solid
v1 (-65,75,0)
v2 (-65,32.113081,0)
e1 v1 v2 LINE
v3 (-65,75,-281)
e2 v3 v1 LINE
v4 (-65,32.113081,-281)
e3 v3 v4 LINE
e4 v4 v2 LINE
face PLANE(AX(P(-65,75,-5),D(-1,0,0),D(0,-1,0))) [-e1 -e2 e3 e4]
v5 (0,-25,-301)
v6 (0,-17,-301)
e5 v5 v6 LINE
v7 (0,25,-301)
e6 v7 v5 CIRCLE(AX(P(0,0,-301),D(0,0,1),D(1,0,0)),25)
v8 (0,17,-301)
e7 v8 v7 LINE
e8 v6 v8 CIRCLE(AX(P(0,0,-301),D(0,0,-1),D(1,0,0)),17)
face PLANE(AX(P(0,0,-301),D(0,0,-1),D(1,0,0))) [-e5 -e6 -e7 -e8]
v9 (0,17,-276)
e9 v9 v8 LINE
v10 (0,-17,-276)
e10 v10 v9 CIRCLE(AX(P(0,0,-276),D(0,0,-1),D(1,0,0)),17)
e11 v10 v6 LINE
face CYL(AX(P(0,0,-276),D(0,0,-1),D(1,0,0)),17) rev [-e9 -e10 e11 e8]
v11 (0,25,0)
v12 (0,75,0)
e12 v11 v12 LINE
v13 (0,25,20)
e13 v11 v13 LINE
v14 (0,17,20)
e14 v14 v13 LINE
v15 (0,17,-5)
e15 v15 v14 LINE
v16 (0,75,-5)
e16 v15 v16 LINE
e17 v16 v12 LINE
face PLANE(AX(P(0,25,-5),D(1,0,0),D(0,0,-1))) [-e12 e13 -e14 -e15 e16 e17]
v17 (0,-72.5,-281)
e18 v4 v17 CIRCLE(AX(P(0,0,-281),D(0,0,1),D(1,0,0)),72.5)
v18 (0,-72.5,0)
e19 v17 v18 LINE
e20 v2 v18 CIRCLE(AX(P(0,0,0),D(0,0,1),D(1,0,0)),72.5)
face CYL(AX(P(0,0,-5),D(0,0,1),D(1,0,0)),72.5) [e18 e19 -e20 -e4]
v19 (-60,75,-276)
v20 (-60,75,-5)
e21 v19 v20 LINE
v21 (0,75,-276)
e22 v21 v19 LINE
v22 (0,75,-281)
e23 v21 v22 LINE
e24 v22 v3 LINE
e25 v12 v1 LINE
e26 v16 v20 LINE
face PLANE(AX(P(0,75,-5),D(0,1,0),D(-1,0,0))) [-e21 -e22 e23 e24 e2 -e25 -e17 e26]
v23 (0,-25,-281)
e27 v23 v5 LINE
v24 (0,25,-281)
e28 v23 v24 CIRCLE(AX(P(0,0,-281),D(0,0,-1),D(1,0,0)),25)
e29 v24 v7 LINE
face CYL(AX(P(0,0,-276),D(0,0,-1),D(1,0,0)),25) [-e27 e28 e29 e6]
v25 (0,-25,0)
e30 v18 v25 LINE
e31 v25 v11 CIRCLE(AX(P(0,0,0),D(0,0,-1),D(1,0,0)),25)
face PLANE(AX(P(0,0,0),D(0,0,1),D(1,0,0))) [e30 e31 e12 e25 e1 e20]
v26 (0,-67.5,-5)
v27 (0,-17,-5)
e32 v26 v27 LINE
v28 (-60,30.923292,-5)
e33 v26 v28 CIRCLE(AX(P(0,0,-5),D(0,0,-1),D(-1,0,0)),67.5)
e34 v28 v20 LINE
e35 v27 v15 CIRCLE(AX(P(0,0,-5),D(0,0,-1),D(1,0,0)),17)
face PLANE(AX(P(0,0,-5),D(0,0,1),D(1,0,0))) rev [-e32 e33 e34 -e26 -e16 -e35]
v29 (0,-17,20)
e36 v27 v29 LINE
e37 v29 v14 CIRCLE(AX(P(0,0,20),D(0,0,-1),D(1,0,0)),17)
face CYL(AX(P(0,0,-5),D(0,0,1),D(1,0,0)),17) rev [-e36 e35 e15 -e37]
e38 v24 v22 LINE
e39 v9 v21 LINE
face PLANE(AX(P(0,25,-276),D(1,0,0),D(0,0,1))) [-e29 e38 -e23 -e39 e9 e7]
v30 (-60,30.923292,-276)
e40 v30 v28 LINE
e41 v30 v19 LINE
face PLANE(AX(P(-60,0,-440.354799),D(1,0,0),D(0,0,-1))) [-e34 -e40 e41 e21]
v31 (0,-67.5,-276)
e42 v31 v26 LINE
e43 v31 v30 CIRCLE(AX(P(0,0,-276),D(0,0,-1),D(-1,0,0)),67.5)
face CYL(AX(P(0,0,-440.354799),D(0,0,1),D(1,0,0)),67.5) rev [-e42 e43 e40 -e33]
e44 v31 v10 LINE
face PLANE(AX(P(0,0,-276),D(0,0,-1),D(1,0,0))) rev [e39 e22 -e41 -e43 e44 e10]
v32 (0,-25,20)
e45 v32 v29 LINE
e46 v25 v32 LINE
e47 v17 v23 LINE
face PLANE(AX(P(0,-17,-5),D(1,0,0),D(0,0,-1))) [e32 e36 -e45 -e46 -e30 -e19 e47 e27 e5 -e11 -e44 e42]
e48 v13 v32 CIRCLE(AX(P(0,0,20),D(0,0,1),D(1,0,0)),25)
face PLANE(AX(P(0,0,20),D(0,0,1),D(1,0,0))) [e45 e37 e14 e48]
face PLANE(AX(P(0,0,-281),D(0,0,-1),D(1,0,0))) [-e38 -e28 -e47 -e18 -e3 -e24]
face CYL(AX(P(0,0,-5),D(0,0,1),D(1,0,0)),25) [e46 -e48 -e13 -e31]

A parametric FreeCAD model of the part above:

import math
import FreeCAD as App
import Part
import Sketcher
Q = App.Units.Quantity

doc = App.newDocument("Part")
body = doc.addObject("PartDesign::Body", "Body")

sketch1 = body.newObject("Sketcher::SketchObject", "Sketch")
sketch1.AttachmentSupport = (doc.getObject("XY_Plane"), [""])
sketch1.MapMode = "FlatFace"
sketch1.addGeometry(Part.LineSegment(App.Vector(0, 17, 0), App.Vector(0, 25, 0)), False)
sketch1.addGeometry(Part.ArcOfCircle(Part.Circle(App.Vector(0, 0, 0), App.Vector(0, 0, 1), 25), math.radians(90), math.radians(270)), False)
sketch1.addGeometry(Part.LineSegment(App.Vector(0, -25, 0), App.Vector(0, -17, 0)), False)
sketch1.addGeometry(Part.ArcOfCircle(Part.Circle(App.Vector(0, 0, 0), App.Vector(0, 0, 1), 17), math.radians(90), math.radians(270)), False)
sketch1.addConstraint(Sketcher.Constraint("Coincident", 0, 2, 1, 1))
sketch1.addConstraint(Sketcher.Constraint("Coincident", 1, 2, 2, 1))
sketch1.addConstraint(Sketcher.Constraint("Coincident", 2, 2, 3, 2))
sketch1.addConstraint(Sketcher.Constraint("Coincident", 3, 1, 0, 1))
sketch1.addConstraint(Sketcher.Constraint("Vertical", 0))
sketch1.addConstraint(Sketcher.Constraint("Vertical", 2))
sketch1.addConstraint(Sketcher.Constraint("Coincident", 1, 3, -1, 1))
sketch1.addConstraint(Sketcher.Constraint("Coincident", 3, 3, -1, 1))
sketch1.addConstraint(Sketcher.Constraint("PointOnObject", 0, 2, -2))
sketch1.addConstraint(Sketcher.Constraint("PointOnObject", 1, 2, -2))
sketch1.addConstraint(Sketcher.Constraint("Radius", 1, Q("25 mm")))
sketch1.addConstraint(Sketcher.Constraint("Radius", 3, Q("17 mm")))
pad1 = body.newObject("PartDesign::Pad", "Pad")
pad1.Profile = sketch1
pad1.Type = "TwoLengths"
pad1.Length = 20
pad1.Length2 = 5

sketch2 = body.newObject("Sketcher::SketchObject", "Sketch001")
sketch2.AttachmentSupport = (doc.getObject("XY_Plane"), [""])
sketch2.MapMode = "FlatFace"
sketch2.AttachmentOffset = App.Placement(App.Vector(0, 0, -5), App.Rotation())
sketch2.addGeometry(Part.LineSegment(App.Vector(0, 25, 0), App.Vector(0, 75, 0)), False)
sketch2.addGeometry(Part.LineSegment(App.Vector(0, 75, 0), App.Vector(-65, 75, 0)), False)
sketch2.addGeometry(Part.LineSegment(App.Vector(-65, 75, 0), App.Vector(-65, 32, 0)), False)
sketch2.addGeometry(Part.ArcOfCircle(Part.Circle(App.Vector(0, 0, 0), App.Vector(0, 0, 1), 72), math.radians(154), math.radians(270)), False)
sketch2.addGeometry(Part.LineSegment(App.Vector(0, -72, 0), App.Vector(0, -25, 0)), False)
sketch2.addGeometry(Part.ArcOfCircle(Part.Circle(App.Vector(0, 0, 0), App.Vector(0, 0, 1), 25), math.radians(90), math.radians(270)), False)
sketch2.addConstraint(Sketcher.Constraint("Coincident", 0, 2, 1, 1))
sketch2.addConstraint(Sketcher.Constraint("Coincident", 1, 2, 2, 1))
sketch2.addConstraint(Sketcher.Constraint("Coincident", 2, 2, 3, 1))
sketch2.addConstraint(Sketcher.Constraint("Coincident", 3, 2, 4, 1))
sketch2.addConstraint(Sketcher.Constraint("Coincident", 4, 2, 5, 2))
sketch2.addConstraint(Sketcher.Constraint("Coincident", 5, 1, 0, 1))
sketch2.addConstraint(Sketcher.Constraint("Vertical", 0))
sketch2.addConstraint(Sketcher.Constraint("Horizontal", 1))
sketch2.addConstraint(Sketcher.Constraint("Vertical", 2))
sketch2.addConstraint(Sketcher.Constraint("Vertical", 4))
sketch2.addConstraint(Sketcher.Constraint("Coincident", 3, 3, -1, 1))
sketch2.addConstraint(Sketcher.Constraint("Coincident", 5, 3, -1, 1))
sketch2.addConstraint(Sketcher.Constraint("PointOnObject", 0, 2, -2))
sketch2.addConstraint(Sketcher.Constraint("PointOnObject", 3, 2, -2))
sketch2.addConstraint(Sketcher.Constraint("Radius", 5, Q("25 mm")))
sketch2.addConstraint(Sketcher.Constraint("Radius", 3, Q("72.5 mm")))
sketch2.addConstraint(Sketcher.Constraint("DistanceX", 1, 2, 1, 1, Q("65 mm")))
sketch2.addConstraint(Sketcher.Constraint("DistanceY", 0, 1, 0, 2, Q("50 mm")))
pad2 = body.newObject("PartDesign::Pad", "Pad001")
pad2.Profile = sketch2
pad2.Length = 5
body2 = doc.addObject("PartDesign::Body", "Body001")
body2.AllowCompound = True
doc.recompute()

mirroring = doc.addObject("Part::Mirroring", "Mirroring")
mirroring.Source = body
mirroring.Base = App.Vector(0, 0, -140.5)
mirroring.Normal = App.Vector(0, 0, 1)
body2.BaseFeature = mirroring
doc.recompute()

boolean = body2.newObject("PartDesign::Boolean", "Boolean")
boolean.Type = "Fuse"
boolean.addObjects([body])

sketch3 = body2.newObject("Sketcher::SketchObject", "Sketch002")
sketch3.AttachmentSupport = (doc.getObject("XY_Plane001"), [""])
sketch3.MapMode = "FlatFace"
sketch3.AttachmentOffset = App.Placement(App.Vector(0, 0, -5), App.Rotation())
sketch3.addGeometry(Part.LineSegment(App.Vector(-60, 75, 0), App.Vector(-60, 31, 0)), False)
sketch3.addGeometry(Part.ArcOfCircle(Part.Circle(App.Vector(0, 0, 0), App.Vector(0, 0, 1), 68), math.radians(153), math.radians(270)), False)
sketch3.addGeometry(Part.LineSegment(App.Vector(0, -68, 0), App.Vector(0, -72, 0)), False)
sketch3.addGeometry(Part.ArcOfCircle(Part.Circle(App.Vector(0, 0, 0), App.Vector(0, 0, 1), 72), math.radians(154), math.radians(270)), False)
sketch3.addGeometry(Part.LineSegment(App.Vector(-65, 32, 0), App.Vector(-65, 75, 0)), False)
sketch3.addGeometry(Part.LineSegment(App.Vector(-65, 75, 0), App.Vector(-60, 75, 0)), False)
sketch3.addConstraint(Sketcher.Constraint("Coincident", 0, 2, 1, 1))
sketch3.addConstraint(Sketcher.Constraint("Coincident", 1, 2, 2, 1))
sketch3.addConstraint(Sketcher.Constraint("Coincident", 2, 2, 3, 2))
sketch3.addConstraint(Sketcher.Constraint("Coincident", 3, 1, 4, 1))
sketch3.addConstraint(Sketcher.Constraint("Coincident", 4, 2, 5, 1))
sketch3.addConstraint(Sketcher.Constraint("Coincident", 5, 2, 0, 1))
sketch3.addConstraint(Sketcher.Constraint("Vertical", 0))
sketch3.addConstraint(Sketcher.Constraint("Vertical", 2))
sketch3.addConstraint(Sketcher.Constraint("Vertical", 4))
sketch3.addConstraint(Sketcher.Constraint("Horizontal", 5))
sketch3.addConstraint(Sketcher.Constraint("Coincident", 1, 3, -1, 1))
sketch3.addConstraint(Sketcher.Constraint("Coincident", 3, 3, -1, 1))
sketch3.addConstraint(Sketcher.Constraint("PointOnObject", 1, 2, -2))
sketch3.addConstraint(Sketcher.Constraint("Equal", 5, 2))
sketch3.addConstraint(Sketcher.Constraint("Radius", 1, Q("67.5 mm")))
sketch3.addConstraint(Sketcher.Constraint("Radius", 3, Q("72.5 mm")))
sketch3.addConstraint(Sketcher.Constraint("DistanceX", 0, 2, -1, 1, Q("60 mm")))
sketch3.addConstraint(Sketcher.Constraint("DistanceY", -1, 1, 4, 2, Q("75 mm")))
pad3 = body2.newObject("PartDesign::Pad", "Pad002")
pad3.Profile = sketch3
pad3.Type = "UpToFirst"
pad3.Reversed = True
mirroring.Visibility = False

doc.recompute()
